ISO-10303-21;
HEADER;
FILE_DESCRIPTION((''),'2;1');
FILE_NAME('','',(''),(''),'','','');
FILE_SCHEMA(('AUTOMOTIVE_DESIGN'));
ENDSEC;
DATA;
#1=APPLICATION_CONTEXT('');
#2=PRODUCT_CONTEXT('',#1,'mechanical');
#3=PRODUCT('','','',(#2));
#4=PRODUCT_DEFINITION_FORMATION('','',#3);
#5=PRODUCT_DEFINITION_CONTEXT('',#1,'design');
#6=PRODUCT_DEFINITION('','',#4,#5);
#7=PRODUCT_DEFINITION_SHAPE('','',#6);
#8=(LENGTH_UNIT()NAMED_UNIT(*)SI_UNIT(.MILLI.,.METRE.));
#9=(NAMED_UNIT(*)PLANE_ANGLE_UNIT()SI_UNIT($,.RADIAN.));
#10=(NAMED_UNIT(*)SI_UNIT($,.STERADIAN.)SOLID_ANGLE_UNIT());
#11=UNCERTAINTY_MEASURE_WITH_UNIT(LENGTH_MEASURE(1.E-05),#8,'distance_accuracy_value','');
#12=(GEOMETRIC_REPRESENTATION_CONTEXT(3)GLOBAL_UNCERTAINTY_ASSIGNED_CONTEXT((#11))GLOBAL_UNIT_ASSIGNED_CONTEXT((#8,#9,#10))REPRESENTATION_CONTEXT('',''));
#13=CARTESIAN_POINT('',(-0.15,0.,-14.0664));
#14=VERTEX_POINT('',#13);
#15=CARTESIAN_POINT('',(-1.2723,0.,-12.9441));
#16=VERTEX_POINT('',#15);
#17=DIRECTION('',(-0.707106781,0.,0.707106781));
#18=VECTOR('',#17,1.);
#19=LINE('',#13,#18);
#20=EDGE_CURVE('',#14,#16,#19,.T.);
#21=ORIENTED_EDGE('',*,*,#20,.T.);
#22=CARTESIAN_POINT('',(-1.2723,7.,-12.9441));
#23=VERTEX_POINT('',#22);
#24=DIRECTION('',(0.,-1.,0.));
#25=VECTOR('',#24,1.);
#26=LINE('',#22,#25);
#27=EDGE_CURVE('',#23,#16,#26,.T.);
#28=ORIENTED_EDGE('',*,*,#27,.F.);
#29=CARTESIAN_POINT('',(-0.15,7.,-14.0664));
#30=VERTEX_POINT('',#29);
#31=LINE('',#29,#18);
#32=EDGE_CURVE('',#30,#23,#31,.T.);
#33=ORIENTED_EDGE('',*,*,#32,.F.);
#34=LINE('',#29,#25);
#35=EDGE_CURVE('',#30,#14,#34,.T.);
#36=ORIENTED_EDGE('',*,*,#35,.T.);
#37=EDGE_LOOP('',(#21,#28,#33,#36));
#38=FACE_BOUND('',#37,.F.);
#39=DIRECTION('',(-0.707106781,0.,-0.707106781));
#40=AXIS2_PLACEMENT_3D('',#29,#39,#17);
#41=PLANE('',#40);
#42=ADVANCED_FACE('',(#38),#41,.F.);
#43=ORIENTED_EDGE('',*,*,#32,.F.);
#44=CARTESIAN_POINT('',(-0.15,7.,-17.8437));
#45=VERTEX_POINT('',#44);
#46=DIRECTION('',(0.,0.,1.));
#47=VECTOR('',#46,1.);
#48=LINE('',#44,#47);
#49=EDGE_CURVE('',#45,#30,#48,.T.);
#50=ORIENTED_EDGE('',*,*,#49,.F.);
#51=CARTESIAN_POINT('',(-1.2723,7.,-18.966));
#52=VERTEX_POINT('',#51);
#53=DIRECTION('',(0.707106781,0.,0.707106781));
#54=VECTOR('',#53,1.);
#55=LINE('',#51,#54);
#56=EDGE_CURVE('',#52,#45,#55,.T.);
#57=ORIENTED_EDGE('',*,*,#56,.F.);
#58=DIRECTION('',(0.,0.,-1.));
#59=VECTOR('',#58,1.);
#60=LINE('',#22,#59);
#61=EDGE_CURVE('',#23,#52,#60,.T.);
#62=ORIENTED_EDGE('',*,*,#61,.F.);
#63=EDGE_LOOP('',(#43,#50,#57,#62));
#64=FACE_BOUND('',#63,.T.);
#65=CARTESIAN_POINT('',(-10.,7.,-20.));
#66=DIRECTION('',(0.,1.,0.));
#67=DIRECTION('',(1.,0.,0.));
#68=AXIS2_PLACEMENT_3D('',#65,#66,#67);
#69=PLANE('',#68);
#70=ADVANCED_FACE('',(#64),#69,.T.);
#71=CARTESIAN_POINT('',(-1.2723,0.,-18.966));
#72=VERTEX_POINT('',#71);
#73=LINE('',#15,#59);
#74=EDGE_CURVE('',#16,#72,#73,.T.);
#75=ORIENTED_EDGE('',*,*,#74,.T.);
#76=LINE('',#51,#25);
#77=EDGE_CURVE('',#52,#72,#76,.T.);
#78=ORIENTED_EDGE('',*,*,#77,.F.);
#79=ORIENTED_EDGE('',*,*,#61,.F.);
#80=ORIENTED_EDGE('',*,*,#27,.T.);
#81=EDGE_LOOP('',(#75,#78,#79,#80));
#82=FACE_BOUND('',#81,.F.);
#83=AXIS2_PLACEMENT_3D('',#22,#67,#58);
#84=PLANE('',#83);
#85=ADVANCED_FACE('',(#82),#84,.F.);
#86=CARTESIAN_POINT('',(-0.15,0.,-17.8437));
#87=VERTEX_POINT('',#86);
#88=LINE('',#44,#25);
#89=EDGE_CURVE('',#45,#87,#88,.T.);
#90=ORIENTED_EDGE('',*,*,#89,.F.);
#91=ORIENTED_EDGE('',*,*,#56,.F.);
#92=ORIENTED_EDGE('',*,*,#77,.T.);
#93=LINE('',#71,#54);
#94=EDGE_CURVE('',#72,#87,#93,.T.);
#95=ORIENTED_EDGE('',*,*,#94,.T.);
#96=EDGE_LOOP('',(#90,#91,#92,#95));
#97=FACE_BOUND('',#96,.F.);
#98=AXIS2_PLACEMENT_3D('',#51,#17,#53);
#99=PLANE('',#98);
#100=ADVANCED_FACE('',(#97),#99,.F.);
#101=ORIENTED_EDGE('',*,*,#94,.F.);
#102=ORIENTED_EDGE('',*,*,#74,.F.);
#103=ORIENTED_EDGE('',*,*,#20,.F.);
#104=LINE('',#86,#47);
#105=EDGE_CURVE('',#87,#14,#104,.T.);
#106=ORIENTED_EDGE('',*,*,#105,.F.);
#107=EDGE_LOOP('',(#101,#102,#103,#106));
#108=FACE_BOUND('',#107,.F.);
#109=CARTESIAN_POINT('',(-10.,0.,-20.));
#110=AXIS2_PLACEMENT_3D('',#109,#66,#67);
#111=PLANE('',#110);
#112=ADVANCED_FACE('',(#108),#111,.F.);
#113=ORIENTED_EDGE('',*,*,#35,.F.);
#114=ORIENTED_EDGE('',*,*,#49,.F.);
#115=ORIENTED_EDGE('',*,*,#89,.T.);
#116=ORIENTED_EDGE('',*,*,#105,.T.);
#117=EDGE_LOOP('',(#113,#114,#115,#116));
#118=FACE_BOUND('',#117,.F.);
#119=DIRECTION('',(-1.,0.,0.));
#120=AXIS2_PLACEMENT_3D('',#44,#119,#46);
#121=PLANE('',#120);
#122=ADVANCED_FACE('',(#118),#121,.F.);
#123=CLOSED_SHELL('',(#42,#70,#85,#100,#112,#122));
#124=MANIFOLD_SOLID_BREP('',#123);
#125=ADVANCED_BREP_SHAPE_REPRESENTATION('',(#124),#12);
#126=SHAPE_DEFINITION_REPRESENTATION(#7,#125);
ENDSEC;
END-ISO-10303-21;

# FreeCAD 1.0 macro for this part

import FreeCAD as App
import Part
import Sketcher

doc = App.newDocument("Part")
body = doc.addObject("PartDesign::Body", "Body")

sketch1 = doc.addObject("Sketcher::SketchObject", "Sketch")
body.addObject(sketch1)
sketch1.AttachmentSupport = (doc.XZ_Plane, [""])
sketch1.MapMode = "FlatFace"
sketch1.AttachmentOffset = App.Placement(App.Vector(0, 0, -7), App.Rotation())
sketch1.addGeometry(Part.LineSegment(App.Vector(-0.1, -14.1, 0), App.Vector(-0.1, -17.8, 0)), False)
sketch1.addGeometry(Part.LineSegment(App.Vector(-0.1, -17.8, 0), App.Vector(-1.3, -19, 0)), False)
sketch1.addGeometry(Part.LineSegment(App.Vector(-1.3, -19, 0), App.Vector(-1.3, -12.9, 0)), False)
sketch1.addGeometry(Part.LineSegment(App.Vector(-1.3, -12.9, 0), App.Vector(-0.1, -14.1, 0)), False)
sketch1.addConstraint(Sketcher.Constraint("Coincident", 0, 2, 1, 1))
sketch1.addConstraint(Sketcher.Constraint("Coincident", 1, 2, 2, 1))
sketch1.addConstraint(Sketcher.Constraint("Coincident", 2, 2, 3, 1))
sketch1.addConstraint(Sketcher.Constraint("Coincident", 3, 2, 0, 1))
sketch1.addConstraint(Sketcher.Constraint("Vertical", 0))
sketch1.addConstraint(Sketcher.Constraint("Vertical", 2))
sketch1.addConstraint(Sketcher.Constraint("Perpendicular", 1, 3))
sketch1.addConstraint(Sketcher.Constraint("Equal", 1, 3))
sketch1.addConstraint(Sketcher.Constraint("DistanceX", 0, 2, -1, 1, 0.15))
sketch1.addConstraint(Sketcher.Constraint("DistanceY", 2, 1, 2, 2, 6.022))
sketch1.addConstraint(Sketcher.Constraint("DistanceY", 0, 2, 0, 1, 3.7773))
sketch1.addConstraint(Sketcher.Constraint("DistanceY", 1, 2, -1, 1, 18.966))
pad1 = doc.addObject("PartDesign::Pad", "Pad")
body.addObject(pad1)
pad1.Profile = sketch1
pad1.Length = 7

doc.recompute()
